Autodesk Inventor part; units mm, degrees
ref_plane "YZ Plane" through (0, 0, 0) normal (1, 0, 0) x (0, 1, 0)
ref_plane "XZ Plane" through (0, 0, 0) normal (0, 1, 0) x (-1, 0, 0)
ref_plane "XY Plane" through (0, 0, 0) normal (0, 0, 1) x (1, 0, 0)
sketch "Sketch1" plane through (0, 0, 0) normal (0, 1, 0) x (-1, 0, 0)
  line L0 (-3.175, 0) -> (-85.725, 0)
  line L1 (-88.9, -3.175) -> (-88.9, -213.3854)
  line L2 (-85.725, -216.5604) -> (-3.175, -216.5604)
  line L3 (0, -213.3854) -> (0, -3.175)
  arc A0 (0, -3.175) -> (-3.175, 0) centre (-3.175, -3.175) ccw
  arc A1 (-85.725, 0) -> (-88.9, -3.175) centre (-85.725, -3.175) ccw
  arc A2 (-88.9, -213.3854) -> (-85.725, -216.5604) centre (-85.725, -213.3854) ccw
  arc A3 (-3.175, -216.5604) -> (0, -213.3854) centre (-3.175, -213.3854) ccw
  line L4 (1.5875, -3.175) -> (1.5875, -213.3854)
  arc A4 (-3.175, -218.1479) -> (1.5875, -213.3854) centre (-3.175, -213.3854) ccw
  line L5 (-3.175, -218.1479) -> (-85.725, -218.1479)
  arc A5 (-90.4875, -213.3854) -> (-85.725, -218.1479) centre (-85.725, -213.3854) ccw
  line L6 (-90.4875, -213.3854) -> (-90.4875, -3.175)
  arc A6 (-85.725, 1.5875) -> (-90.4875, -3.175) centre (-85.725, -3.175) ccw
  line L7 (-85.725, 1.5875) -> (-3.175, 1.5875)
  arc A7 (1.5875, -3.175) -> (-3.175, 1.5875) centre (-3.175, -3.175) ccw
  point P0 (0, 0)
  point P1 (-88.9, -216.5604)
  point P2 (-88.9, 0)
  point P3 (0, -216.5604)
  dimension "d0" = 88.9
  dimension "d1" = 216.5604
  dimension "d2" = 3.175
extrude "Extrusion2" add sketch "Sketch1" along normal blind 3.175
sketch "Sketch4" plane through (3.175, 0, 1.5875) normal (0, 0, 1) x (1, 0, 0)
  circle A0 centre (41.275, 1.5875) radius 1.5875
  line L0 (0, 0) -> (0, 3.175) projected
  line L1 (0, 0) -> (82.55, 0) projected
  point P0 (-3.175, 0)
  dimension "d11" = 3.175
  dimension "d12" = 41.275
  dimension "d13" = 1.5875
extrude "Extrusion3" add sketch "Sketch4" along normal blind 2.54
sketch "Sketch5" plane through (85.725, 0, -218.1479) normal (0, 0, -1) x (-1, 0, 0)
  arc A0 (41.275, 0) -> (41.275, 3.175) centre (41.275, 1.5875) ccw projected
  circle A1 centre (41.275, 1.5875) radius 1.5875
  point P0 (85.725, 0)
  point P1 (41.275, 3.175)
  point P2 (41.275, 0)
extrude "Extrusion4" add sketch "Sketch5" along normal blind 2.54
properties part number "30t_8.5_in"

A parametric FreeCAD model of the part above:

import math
import FreeCAD as App
import Part
import Sketcher
from FreeCAD import Vector
Q = App.Units.Quantity

doc = App.newDocument("Part")
body = doc.addObject("PartDesign::Body", "Body")

# Sketch on XZ plane
sketch1 = body.newObject("Sketcher::SketchObject", "Sketch")
sketch1.AttachmentSupport = (doc.getObject("XZ_Plane"), [""])
sketch1.MapMode = "FlatFace"
sketch1.addGeometry(Part.LineSegment(Vector(-1.6, -213.4, 0), Vector(-1.6, -3.2, 0)), False)
sketch1.addGeometry(Part.ArcOfCircle(Part.Circle(Vector(3.2, -3.2, 0), Vector(0, 0, 1), 4.8), math.radians(90), math.radians(180)), False)
sketch1.addGeometry(Part.LineSegment(Vector(3.2, 1.6, 0), Vector(85.7, 1.6, 0)), False)
sketch1.addGeometry(Part.ArcOfCircle(Part.Circle(Vector(85.7, -3.2, 0), Vector(0, 0, 1), 4.8), math.radians(0), math.radians(90)), False)
sketch1.addGeometry(Part.LineSegment(Vector(90.5, -3.2, 0), Vector(90.5, -213.4, 0)), False)
sketch1.addGeometry(Part.ArcOfCircle(Part.Circle(Vector(85.7, -213.4, 0), Vector(0, 0, 1), 4.8), math.radians(-90), math.radians(0)), False)
sketch1.addGeometry(Part.LineSegment(Vector(85.7, -218.1, 0), Vector(3.2, -218.1, 0)), False)
sketch1.addGeometry(Part.ArcOfCircle(Part.Circle(Vector(3.2, -213.4, 0), Vector(0, 0, 1), 4.8), math.radians(180), math.radians(270)), False)
sketch1.addGeometry(Part.LineSegment(Vector(85.7, 0, 0), Vector(3.2, 0, 0)), False)
sketch1.addGeometry(Part.ArcOfCircle(Part.Circle(Vector(3.2, -3.2, 0), Vector(0, 0, 1), 3.2), math.radians(90), math.radians(180)), False)
sketch1.addGeometry(Part.LineSegment(Vector(0, -3.2, 0), Vector(0, -213.4, 0)), False)
sketch1.addGeometry(Part.ArcOfCircle(Part.Circle(Vector(3.2, -213.4, 0), Vector(0, 0, 1), 3.2), math.radians(180), math.radians(270)), False)
sketch1.addGeometry(Part.LineSegment(Vector(3.2, -216.6, 0), Vector(85.7, -216.6, 0)), False)
sketch1.addGeometry(Part.ArcOfCircle(Part.Circle(Vector(85.7, -213.4, 0), Vector(0, 0, 1), 3.2), math.radians(-90), math.radians(0)), False)
sketch1.addGeometry(Part.LineSegment(Vector(88.9, -213.4, 0), Vector(88.9, -3.2, 0)), False)
sketch1.addGeometry(Part.ArcOfCircle(Part.Circle(Vector(85.7, -3.2, 0), Vector(0, 0, 1), 3.2), math.radians(0), math.radians(90)), False)
sketch1.addConstraint(Sketcher.Constraint("Tangent", 0, 2, 1, 2))
sketch1.addConstraint(Sketcher.Constraint("Tangent", 1, 1, 2, 1))
sketch1.addConstraint(Sketcher.Constraint("Tangent", 2, 2, 3, 2))
sketch1.addConstraint(Sketcher.Constraint("Tangent", 3, 1, 4, 1))
sketch1.addConstraint(Sketcher.Constraint("Tangent", 4, 2, 5, 2))
sketch1.addConstraint(Sketcher.Constraint("Tangent", 5, 1, 6, 1))
sketch1.addConstraint(Sketcher.Constraint("Tangent", 6, 2, 7, 2))
sketch1.addConstraint(Sketcher.Constraint("Tangent", 7, 1, 0, 1))
sketch1.addConstraint(Sketcher.Constraint("Tangent", 8, 2, 9, 1))
sketch1.addConstraint(Sketcher.Constraint("Tangent", 9, 2, 10, 1))
sketch1.addConstraint(Sketcher.Constraint("Tangent", 10, 2, 11, 1))
sketch1.addConstraint(Sketcher.Constraint("Tangent", 11, 2, 12, 1))
sketch1.addConstraint(Sketcher.Constraint("Tangent", 12, 2, 13, 1))
sketch1.addConstraint(Sketcher.Constraint("Tangent", 13, 2, 14, 1))
sketch1.addConstraint(Sketcher.Constraint("Tangent", 14, 2, 15, 1))
sketch1.addConstraint(Sketcher.Constraint("Tangent", 15, 2, 8, 1))
sketch1.addConstraint(Sketcher.Constraint("Vertical", 0))
sketch1.addConstraint(Sketcher.Constraint("Horizontal", 2))
sketch1.addConstraint(Sketcher.Constraint("Vertical", 4))
sketch1.addConstraint(Sketcher.Constraint("Horizontal", 6))
sketch1.addConstraint(Sketcher.Constraint("Horizontal", 8))
sketch1.addConstraint(Sketcher.Constraint("Vertical", 10))
sketch1.addConstraint(Sketcher.Constraint("Horizontal", 12))
sketch1.addConstraint(Sketcher.Constraint("Vertical", 14))
sketch1.addConstraint(Sketcher.Constraint("Coincident", 9, 3, 1, 3))
sketch1.addConstraint(Sketcher.Constraint("Coincident", 11, 3, 7, 3))
sketch1.addConstraint(Sketcher.Constraint("Coincident", 13, 3, 5, 3))
sketch1.addConstraint(Sketcher.Constraint("Equal", 1, 3))
sketch1.addConstraint(Sketcher.Constraint("Equal", 3, 5))
sketch1.addConstraint(Sketcher.Constraint("Equal", 5, 7))
sketch1.addConstraint(Sketcher.Constraint("Equal", 13, 15))
sketch1.addConstraint(Sketcher.Constraint("PointOnObject", 8, 2, -1))
sketch1.addConstraint(Sketcher.Constraint("PointOnObject", 9, 2, -2))
sketch1.addConstraint(Sketcher.Constraint("Radius", 9, Q("0.125 in")))
sketch1.addConstraint(Sketcher.Constraint("DistanceX", -1, 1, 13, 2, Q("3.5 in")))
sketch1.addConstraint(Sketcher.Constraint("DistanceY", 11, 2, -1, 1, Q("8.526 in")))
sketch1.addConstraint(Sketcher.Constraint("Radius", 1, Q("0.1875 in")))
pad1 = body.newObject("PartDesign::Pad", "Pad")
pad1.Profile = sketch1
pad1.Length = Q("0.125 in")
pad1.Reversed = True

# Sketch on XY plane
sketch2 = body.newObject("Sketcher::SketchObject", "Sketch001")
sketch2.AttachmentSupport = (doc.getObject("XY_Plane"), [""])
sketch2.MapMode = "FlatFace"
sketch2.AttachmentOffset = App.Placement(Vector(0, 0, 0.0625 * 25.4), App.Rotation())
sketch2.addGeometry(Part.Circle(Vector(44.5, 1.6, 0), Vector(0, 0, 1), 1.6), False)
sketch2.addConstraint(Sketcher.Constraint("Diameter", 0, Q("0.125 in")))
sketch2.addConstraint(Sketcher.Constraint("DistanceY", -1, 1, 0, 3, Q("0.0625 in")))
sketch2.addConstraint(Sketcher.Constraint("DistanceX", -1, 1, 0, 3, Q("1.75 in")))
pad2 = body.newObject("PartDesign::Pad", "Pad001")
pad2.Profile = sketch2
pad2.Length = Q("0.1 in")

# Sketch on XY plane
sketch3 = body.newObject("Sketcher::SketchObject", "Sketch002")
sketch3.AttachmentSupport = (doc.getObject("XY_Plane"), [""])
sketch3.MapMode = "FlatFace"
sketch3.AttachmentOffset = App.Placement(Vector(0, 0, -8.5885 * 25.4), App.Rotation())
sketch3.addGeometry(Part.Circle(Vector(44.5, 1.6, 0), Vector(0, 0, 1), 1.6), False)
sketch3.addConstraint(Sketcher.Constraint("Diameter", 0, Q("0.125 in")))
sketch3.addConstraint(Sketcher.Constraint("DistanceX", -1, 1, 0, 3, Q("1.75 in")))
sketch3.addConstraint(Sketcher.Constraint("DistanceY", -1, 1, 0, 3, Q("0.0625 in")))
pad3 = body.newObject("PartDesign::Pad", "Pad002")
pad3.Profile = sketch3
pad3.Length = Q("0.1 in")
pad3.Reversed = True

doc.recompute()
